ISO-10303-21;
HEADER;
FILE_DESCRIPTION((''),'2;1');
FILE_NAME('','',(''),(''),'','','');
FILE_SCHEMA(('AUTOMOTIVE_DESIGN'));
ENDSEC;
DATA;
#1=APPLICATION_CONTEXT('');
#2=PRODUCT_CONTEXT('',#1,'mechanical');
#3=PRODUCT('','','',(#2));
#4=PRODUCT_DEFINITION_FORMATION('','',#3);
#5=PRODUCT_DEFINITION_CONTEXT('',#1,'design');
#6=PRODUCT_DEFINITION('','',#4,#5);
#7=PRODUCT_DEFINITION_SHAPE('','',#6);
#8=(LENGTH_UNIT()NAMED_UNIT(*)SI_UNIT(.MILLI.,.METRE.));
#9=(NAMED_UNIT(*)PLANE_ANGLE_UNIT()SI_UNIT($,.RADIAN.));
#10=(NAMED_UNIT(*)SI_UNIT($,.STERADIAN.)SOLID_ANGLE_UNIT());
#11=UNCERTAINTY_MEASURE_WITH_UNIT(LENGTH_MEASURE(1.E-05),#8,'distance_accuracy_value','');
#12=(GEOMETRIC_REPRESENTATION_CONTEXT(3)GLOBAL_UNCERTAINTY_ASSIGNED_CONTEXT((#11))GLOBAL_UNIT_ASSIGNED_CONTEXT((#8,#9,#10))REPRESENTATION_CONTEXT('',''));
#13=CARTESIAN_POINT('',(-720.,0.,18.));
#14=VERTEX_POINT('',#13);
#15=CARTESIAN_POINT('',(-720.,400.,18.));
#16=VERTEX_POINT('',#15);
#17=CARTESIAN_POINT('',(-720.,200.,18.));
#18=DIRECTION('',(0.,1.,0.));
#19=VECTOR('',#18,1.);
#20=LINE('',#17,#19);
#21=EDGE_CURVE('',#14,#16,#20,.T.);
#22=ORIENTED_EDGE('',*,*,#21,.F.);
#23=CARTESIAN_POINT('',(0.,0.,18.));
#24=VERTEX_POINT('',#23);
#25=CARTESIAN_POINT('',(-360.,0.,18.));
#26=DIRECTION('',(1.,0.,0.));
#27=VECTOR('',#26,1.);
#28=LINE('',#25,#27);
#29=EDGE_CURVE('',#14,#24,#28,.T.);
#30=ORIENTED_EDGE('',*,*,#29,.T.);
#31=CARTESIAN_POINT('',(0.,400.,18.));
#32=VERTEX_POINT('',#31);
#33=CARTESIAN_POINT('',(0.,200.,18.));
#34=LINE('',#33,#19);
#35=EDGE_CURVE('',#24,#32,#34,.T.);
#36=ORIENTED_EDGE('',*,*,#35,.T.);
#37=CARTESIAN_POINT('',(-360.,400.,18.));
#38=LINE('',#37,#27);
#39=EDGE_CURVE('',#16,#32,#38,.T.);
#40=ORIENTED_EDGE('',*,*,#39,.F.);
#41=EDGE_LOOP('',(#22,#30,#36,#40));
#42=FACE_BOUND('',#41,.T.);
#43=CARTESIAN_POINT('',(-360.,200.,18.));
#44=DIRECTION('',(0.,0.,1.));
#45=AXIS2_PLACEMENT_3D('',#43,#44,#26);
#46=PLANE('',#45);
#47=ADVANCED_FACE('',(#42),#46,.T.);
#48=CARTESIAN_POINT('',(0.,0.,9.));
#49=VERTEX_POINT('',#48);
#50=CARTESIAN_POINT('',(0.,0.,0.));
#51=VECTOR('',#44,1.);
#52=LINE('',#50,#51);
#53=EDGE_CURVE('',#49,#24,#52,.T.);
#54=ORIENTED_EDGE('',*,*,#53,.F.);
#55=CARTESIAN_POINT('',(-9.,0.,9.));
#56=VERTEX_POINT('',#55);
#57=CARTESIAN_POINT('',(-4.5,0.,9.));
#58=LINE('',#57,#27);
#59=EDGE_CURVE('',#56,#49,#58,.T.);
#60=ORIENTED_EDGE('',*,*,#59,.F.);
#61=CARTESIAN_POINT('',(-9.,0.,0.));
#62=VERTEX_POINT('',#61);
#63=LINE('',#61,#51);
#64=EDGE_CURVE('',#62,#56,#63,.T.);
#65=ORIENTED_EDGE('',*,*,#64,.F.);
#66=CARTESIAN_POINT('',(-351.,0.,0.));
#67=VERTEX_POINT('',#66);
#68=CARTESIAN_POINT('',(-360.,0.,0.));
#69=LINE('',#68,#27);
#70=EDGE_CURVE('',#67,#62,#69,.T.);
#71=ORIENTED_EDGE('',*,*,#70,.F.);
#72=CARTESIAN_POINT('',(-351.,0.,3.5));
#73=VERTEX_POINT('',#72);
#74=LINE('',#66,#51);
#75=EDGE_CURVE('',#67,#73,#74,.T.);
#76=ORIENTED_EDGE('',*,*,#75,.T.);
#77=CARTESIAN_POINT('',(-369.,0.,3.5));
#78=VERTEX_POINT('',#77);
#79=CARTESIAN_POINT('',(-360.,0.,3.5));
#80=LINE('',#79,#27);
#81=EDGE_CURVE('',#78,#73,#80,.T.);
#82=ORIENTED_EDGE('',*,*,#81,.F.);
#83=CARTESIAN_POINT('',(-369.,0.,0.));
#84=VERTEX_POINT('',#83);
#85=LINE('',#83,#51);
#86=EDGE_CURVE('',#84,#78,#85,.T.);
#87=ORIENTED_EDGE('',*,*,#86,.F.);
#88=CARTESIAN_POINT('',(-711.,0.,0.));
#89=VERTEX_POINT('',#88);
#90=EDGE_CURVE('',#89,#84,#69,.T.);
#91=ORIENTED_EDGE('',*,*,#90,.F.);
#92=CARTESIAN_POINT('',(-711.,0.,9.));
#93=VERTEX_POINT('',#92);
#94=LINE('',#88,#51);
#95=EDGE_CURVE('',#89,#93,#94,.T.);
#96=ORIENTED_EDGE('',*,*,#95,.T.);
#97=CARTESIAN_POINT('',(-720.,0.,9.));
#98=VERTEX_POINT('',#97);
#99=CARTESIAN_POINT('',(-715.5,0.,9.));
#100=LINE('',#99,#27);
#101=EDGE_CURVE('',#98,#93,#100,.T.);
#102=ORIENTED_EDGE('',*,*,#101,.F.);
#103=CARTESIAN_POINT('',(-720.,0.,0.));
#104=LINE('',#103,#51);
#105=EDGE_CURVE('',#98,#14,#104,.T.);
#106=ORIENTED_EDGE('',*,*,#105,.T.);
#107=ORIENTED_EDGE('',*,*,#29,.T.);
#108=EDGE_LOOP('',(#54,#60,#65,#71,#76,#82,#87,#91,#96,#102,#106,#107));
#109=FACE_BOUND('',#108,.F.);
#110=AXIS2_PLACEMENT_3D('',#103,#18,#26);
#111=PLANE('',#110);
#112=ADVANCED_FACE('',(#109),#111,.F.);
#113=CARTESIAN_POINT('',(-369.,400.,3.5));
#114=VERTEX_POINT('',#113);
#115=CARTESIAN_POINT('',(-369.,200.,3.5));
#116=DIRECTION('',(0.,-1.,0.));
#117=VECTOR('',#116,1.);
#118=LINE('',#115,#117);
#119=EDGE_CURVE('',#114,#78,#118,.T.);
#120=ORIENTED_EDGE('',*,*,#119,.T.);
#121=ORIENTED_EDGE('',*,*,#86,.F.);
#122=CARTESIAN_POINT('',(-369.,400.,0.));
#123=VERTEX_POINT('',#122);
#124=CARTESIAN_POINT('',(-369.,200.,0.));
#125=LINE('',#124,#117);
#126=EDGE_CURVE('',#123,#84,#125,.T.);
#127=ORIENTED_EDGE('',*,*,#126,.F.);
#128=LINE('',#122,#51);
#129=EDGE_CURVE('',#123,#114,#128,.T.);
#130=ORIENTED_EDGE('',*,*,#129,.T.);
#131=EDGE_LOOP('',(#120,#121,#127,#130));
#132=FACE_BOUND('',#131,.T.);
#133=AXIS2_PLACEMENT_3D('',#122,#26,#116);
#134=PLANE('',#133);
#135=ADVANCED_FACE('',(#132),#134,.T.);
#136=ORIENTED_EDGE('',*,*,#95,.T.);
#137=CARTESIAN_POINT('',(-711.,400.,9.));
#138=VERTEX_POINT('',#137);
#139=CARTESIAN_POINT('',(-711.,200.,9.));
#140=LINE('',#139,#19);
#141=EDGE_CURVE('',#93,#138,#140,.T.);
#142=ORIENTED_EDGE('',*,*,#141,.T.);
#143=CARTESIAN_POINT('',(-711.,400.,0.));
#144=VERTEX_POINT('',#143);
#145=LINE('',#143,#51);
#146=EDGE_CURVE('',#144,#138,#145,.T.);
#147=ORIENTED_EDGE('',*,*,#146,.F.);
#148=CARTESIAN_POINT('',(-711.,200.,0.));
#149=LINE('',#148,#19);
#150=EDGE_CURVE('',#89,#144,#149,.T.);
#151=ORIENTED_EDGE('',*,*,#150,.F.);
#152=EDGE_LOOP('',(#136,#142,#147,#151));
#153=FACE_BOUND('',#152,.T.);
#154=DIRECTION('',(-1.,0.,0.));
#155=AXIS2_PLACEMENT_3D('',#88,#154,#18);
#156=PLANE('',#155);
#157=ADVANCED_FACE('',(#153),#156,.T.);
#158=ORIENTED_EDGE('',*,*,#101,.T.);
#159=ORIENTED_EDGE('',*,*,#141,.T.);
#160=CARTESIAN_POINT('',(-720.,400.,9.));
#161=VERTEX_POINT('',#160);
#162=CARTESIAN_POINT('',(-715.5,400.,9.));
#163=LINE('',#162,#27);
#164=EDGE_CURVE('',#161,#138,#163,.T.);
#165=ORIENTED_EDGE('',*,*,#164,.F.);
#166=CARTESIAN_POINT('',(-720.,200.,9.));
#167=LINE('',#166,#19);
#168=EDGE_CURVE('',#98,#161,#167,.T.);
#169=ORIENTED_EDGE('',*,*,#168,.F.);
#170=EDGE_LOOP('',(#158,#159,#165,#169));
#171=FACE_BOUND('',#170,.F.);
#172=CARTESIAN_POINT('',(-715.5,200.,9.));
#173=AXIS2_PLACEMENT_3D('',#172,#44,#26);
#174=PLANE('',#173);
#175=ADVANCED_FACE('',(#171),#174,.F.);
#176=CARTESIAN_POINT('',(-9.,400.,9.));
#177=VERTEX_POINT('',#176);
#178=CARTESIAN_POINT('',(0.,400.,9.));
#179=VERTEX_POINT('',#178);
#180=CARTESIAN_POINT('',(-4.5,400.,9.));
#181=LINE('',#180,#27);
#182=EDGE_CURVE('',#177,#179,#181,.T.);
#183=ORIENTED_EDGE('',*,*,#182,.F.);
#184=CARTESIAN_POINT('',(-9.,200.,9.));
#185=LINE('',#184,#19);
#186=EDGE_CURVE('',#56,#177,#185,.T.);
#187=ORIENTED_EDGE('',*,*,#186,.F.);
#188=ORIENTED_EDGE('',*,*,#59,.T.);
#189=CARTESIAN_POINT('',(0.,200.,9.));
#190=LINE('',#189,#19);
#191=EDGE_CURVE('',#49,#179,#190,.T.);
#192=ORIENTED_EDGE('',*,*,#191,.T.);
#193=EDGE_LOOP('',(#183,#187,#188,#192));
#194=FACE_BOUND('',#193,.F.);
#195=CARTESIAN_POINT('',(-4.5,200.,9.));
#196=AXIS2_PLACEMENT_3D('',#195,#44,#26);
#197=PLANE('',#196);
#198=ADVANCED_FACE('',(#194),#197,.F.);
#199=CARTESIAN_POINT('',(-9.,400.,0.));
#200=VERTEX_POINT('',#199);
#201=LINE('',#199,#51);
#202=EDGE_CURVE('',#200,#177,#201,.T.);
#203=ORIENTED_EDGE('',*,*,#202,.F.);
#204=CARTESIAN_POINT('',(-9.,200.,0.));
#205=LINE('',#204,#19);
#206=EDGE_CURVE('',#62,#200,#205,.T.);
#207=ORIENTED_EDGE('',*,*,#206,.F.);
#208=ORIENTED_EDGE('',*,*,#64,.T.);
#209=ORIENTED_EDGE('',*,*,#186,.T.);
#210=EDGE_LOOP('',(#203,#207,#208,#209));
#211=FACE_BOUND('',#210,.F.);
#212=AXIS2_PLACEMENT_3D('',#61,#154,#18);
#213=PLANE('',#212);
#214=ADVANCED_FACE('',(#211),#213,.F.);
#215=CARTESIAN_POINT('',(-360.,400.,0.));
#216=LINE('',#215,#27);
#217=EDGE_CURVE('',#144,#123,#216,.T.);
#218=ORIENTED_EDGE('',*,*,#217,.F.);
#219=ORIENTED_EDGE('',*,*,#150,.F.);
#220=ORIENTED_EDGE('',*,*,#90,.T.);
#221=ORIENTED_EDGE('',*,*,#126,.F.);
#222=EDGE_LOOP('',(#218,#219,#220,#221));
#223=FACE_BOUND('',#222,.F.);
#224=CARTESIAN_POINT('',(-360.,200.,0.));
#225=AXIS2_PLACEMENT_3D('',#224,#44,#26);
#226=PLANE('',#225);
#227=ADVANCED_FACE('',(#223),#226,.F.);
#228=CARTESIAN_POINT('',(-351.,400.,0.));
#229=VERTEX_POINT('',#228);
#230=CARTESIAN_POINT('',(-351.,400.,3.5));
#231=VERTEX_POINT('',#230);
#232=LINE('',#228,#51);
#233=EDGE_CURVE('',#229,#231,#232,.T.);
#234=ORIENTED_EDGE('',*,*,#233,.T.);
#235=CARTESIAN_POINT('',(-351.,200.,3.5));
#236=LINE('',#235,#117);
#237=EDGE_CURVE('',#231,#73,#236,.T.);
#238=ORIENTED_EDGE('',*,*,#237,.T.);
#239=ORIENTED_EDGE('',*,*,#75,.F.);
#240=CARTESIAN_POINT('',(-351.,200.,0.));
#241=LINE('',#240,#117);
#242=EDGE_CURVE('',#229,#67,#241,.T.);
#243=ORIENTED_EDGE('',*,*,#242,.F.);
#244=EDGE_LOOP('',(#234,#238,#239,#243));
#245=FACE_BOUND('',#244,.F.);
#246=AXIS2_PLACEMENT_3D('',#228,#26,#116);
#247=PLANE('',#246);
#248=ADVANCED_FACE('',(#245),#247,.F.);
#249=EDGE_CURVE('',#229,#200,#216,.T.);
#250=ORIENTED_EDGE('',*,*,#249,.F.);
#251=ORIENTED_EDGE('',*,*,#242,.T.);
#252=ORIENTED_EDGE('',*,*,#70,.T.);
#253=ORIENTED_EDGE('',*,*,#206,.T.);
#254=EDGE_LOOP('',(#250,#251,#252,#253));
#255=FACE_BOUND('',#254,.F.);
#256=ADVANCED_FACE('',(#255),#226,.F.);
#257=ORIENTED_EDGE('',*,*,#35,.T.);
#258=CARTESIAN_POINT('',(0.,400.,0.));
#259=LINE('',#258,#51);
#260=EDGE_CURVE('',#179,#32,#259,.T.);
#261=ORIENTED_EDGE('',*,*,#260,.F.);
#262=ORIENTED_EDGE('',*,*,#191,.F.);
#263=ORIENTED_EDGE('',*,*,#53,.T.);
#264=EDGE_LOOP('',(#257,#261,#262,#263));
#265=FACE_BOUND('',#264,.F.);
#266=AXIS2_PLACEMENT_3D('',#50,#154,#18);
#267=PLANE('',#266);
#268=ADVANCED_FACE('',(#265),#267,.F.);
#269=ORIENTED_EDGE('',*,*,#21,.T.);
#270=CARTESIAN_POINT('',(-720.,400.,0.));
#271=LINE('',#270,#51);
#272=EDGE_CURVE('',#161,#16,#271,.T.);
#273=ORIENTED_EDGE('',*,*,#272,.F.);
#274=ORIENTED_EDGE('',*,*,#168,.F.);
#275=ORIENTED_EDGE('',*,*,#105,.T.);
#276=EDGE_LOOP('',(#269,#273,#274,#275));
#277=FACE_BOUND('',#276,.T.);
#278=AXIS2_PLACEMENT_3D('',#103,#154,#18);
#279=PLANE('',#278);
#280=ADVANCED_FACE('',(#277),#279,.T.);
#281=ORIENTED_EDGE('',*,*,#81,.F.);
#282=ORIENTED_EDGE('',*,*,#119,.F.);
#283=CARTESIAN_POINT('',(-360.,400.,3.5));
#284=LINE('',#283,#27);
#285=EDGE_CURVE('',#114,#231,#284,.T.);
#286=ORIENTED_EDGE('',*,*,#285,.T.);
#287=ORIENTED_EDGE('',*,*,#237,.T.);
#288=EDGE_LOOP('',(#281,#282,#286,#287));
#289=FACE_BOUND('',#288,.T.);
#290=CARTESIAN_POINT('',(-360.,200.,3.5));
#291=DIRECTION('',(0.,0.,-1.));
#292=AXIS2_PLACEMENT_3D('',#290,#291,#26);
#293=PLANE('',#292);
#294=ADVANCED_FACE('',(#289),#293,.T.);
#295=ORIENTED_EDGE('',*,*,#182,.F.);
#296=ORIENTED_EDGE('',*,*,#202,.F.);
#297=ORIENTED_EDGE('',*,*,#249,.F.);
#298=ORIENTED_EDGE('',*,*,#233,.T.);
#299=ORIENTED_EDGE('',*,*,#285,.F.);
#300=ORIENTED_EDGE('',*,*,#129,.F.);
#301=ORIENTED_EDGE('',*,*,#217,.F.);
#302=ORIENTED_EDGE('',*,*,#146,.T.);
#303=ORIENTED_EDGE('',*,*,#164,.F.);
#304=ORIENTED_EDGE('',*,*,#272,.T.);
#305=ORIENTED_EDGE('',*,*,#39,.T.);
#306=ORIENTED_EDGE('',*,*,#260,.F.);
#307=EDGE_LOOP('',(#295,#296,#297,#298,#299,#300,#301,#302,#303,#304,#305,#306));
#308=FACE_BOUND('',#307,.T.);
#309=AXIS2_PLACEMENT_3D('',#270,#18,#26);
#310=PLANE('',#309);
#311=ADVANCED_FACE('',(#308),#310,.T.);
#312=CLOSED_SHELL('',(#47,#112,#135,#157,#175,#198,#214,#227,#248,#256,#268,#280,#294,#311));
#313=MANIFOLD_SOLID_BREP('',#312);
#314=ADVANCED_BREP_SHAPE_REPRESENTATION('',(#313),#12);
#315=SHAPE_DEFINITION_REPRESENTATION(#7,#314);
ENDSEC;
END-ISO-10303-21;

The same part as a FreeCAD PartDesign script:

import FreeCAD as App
import Part
import Sketcher

doc = App.newDocument("Part")
body = doc.addObject("PartDesign::Body", "Body")

# Sketch on XY plane
sketch1 = body.newObject("Sketcher::SketchObject", "Sketch")
sketch1.AttachmentSupport = (doc.getObject("XY_Plane"), [""])
sketch1.MapMode = "FlatFace"
sketch1.addGeometry([
    Part.LineSegment(App.Vector(-720, 400, 0), App.Vector(-720, 0, 0)),
    Part.LineSegment(App.Vector(-720, 0, 0), App.Vector(0, 0, 0)),
    Part.LineSegment(App.Vector(0, 0, 0), App.Vector(0, 400, 0)),
    Part.LineSegment(App.Vector(0, 400, 0), App.Vector(-720, 400, 0)),
], False)
sketch1.addConstraint([
    Sketcher.Constraint("Coincident", 0, 2, 1, 1),
    Sketcher.Constraint("Coincident", 1, 2, 2, 1),
    Sketcher.Constraint("Coincident", 2, 2, 3, 1),
    Sketcher.Constraint("Coincident", 3, 2, 0, 1),
    Sketcher.Constraint("Vertical", 0),
    Sketcher.Constraint("Horizontal", 1),
    Sketcher.Constraint("Vertical", 2),
    Sketcher.Constraint("Horizontal", 3),
    Sketcher.Constraint("Coincident", 1, 2, -1, 1),
    Sketcher.Constraint("DistanceX", 1, 1, 1, 2, 720.0),
    Sketcher.Constraint("DistanceY", 0, 2, 0, 1, 400.0),
])
pad1 = body.newObject("PartDesign::Pad", "Pad")
pad1.Profile = sketch1
pad1.Length = 18

# Sketch on XY plane
sketch2 = body.newObject("Sketcher::SketchObject", "Sketch001")
sketch2.AttachmentSupport = (doc.getObject("XY_Plane"), [""])
sketch2.MapMode = "FlatFace"
sketch2.addGeometry([
    Part.LineSegment(App.Vector(-9, 400, 0), App.Vector(-9, 0, 0)),  # 0
    Part.LineSegment(App.Vector(-9, 0, 0), App.Vector(0, 0, 0)),  # 1
    Part.LineSegment(App.Vector(0, 0, 0), App.Vector(0, 400, 0)),  # 2
    Part.LineSegment(App.Vector(0, 400, 0), App.Vector(-9, 400, 0)),  # 3
    Part.LineSegment(App.Vector(-720, 400, 0), App.Vector(-720, 0, 0)),  # 4
    Part.LineSegment(App.Vector(-720, 0, 0), App.Vector(-711, 0, 0)),  # 5
    Part.LineSegment(App.Vector(-711, 0, 0), App.Vector(-711, 400, 0)),  # 6
    Part.LineSegment(App.Vector(-711, 400, 0), App.Vector(-720, 400, 0)),  # 7
], False)
sketch2.addConstraint([
    Sketcher.Constraint("Coincident", 0, 2, 1, 1),
    Sketcher.Constraint("Coincident", 1, 2, 2, 1),
    Sketcher.Constraint("Coincident", 2, 2, 3, 1),
    Sketcher.Constraint("Coincident", 3, 2, 0, 1),
    Sketcher.Constraint("Coincident", 4, 2, 5, 1),
    Sketcher.Constraint("Coincident", 5, 2, 6, 1),
    Sketcher.Constraint("Coincident", 6, 2, 7, 1),
    Sketcher.Constraint("Coincident", 7, 2, 4, 1),
    Sketcher.Constraint("Vertical", 0),
    Sketcher.Constraint("Horizontal", 1),
    Sketcher.Constraint("Vertical", 2),
    Sketcher.Constraint("Horizontal", 3),
    Sketcher.Constraint("Vertical", 4),
    Sketcher.Constraint("Horizontal", 5),
    Sketcher.Constraint("Vertical", 6),
    Sketcher.Constraint("Horizontal", 7),
    Sketcher.Constraint("Coincident", 1, 2, -1, 1),
    Sketcher.Constraint("PointOnObject", 4, 2, -1),
    Sketcher.Constraint("Horizontal", 3, 2, 6, 2),
    Sketcher.Constraint("Equal", 3, 5),
    Sketcher.Constraint("DistanceX", 1, 1, 1, 2, 9.0),
    Sketcher.Constraint("DistanceY", 0, 2, 0, 1, 400.0),
    Sketcher.Constraint("DistanceX", 4, 2, -1, 1, 720.0),
])
pocket1 = body.newObject("PartDesign::Pocket", "Pocket")
pocket1.Profile = sketch2
pocket1.Length = 9
pocket1.Reversed = True

# Sketch on XY plane
sketch3 = body.newObject("Sketcher::SketchObject", "Sketch002")
sketch3.AttachmentSupport = (doc.getObject("XY_Plane"), [""])
sketch3.MapMode = "FlatFace"
sketch3.addGeometry([
    Part.LineSegment(App.Vector(-369, 0, 0), App.Vector(-369, 400, 0)),
    Part.LineSegment(App.Vector(-369, 400, 0), App.Vector(-351, 400, 0)),
    Part.LineSegment(App.Vector(-351, 400, 0), App.Vector(-351, 0, 0)),
    Part.LineSegment(App.Vector(-351, 0, 0), App.Vector(-369, 0, 0)),
], False)
sketch3.addConstraint([
    Sketcher.Constraint("Coincident", 0, 2, 1, 1),
    Sketcher.Constraint("Coincident", 1, 2, 2, 1),
    Sketcher.Constraint("Coincident", 2, 2, 3, 1),
    Sketcher.Constraint("Coincident", 3, 2, 0, 1),
    Sketcher.Constraint("Vertical", 0),
    Sketcher.Constraint("Horizontal", 1),
    Sketcher.Constraint("Vertical", 2),
    Sketcher.Constraint("Horizontal", 3),
    Sketcher.Constraint("PointOnObject", 2, 2, -1),
    Sketcher.Constraint("DistanceX", 1, 1, 1, 2, 18.0),
    Sketcher.Constraint("DistanceY", 0, 1, 0, 2, 400.0),
    Sketcher.Constraint("DistanceX", 0, 2, -1, 1, 369.0),
])
pocket2 = body.newObject("PartDesign::Pocket", "Pocket001")
pocket2.Profile = sketch3
pocket2.Length = 3.5
pocket2.Reversed = True

doc.recompute()
